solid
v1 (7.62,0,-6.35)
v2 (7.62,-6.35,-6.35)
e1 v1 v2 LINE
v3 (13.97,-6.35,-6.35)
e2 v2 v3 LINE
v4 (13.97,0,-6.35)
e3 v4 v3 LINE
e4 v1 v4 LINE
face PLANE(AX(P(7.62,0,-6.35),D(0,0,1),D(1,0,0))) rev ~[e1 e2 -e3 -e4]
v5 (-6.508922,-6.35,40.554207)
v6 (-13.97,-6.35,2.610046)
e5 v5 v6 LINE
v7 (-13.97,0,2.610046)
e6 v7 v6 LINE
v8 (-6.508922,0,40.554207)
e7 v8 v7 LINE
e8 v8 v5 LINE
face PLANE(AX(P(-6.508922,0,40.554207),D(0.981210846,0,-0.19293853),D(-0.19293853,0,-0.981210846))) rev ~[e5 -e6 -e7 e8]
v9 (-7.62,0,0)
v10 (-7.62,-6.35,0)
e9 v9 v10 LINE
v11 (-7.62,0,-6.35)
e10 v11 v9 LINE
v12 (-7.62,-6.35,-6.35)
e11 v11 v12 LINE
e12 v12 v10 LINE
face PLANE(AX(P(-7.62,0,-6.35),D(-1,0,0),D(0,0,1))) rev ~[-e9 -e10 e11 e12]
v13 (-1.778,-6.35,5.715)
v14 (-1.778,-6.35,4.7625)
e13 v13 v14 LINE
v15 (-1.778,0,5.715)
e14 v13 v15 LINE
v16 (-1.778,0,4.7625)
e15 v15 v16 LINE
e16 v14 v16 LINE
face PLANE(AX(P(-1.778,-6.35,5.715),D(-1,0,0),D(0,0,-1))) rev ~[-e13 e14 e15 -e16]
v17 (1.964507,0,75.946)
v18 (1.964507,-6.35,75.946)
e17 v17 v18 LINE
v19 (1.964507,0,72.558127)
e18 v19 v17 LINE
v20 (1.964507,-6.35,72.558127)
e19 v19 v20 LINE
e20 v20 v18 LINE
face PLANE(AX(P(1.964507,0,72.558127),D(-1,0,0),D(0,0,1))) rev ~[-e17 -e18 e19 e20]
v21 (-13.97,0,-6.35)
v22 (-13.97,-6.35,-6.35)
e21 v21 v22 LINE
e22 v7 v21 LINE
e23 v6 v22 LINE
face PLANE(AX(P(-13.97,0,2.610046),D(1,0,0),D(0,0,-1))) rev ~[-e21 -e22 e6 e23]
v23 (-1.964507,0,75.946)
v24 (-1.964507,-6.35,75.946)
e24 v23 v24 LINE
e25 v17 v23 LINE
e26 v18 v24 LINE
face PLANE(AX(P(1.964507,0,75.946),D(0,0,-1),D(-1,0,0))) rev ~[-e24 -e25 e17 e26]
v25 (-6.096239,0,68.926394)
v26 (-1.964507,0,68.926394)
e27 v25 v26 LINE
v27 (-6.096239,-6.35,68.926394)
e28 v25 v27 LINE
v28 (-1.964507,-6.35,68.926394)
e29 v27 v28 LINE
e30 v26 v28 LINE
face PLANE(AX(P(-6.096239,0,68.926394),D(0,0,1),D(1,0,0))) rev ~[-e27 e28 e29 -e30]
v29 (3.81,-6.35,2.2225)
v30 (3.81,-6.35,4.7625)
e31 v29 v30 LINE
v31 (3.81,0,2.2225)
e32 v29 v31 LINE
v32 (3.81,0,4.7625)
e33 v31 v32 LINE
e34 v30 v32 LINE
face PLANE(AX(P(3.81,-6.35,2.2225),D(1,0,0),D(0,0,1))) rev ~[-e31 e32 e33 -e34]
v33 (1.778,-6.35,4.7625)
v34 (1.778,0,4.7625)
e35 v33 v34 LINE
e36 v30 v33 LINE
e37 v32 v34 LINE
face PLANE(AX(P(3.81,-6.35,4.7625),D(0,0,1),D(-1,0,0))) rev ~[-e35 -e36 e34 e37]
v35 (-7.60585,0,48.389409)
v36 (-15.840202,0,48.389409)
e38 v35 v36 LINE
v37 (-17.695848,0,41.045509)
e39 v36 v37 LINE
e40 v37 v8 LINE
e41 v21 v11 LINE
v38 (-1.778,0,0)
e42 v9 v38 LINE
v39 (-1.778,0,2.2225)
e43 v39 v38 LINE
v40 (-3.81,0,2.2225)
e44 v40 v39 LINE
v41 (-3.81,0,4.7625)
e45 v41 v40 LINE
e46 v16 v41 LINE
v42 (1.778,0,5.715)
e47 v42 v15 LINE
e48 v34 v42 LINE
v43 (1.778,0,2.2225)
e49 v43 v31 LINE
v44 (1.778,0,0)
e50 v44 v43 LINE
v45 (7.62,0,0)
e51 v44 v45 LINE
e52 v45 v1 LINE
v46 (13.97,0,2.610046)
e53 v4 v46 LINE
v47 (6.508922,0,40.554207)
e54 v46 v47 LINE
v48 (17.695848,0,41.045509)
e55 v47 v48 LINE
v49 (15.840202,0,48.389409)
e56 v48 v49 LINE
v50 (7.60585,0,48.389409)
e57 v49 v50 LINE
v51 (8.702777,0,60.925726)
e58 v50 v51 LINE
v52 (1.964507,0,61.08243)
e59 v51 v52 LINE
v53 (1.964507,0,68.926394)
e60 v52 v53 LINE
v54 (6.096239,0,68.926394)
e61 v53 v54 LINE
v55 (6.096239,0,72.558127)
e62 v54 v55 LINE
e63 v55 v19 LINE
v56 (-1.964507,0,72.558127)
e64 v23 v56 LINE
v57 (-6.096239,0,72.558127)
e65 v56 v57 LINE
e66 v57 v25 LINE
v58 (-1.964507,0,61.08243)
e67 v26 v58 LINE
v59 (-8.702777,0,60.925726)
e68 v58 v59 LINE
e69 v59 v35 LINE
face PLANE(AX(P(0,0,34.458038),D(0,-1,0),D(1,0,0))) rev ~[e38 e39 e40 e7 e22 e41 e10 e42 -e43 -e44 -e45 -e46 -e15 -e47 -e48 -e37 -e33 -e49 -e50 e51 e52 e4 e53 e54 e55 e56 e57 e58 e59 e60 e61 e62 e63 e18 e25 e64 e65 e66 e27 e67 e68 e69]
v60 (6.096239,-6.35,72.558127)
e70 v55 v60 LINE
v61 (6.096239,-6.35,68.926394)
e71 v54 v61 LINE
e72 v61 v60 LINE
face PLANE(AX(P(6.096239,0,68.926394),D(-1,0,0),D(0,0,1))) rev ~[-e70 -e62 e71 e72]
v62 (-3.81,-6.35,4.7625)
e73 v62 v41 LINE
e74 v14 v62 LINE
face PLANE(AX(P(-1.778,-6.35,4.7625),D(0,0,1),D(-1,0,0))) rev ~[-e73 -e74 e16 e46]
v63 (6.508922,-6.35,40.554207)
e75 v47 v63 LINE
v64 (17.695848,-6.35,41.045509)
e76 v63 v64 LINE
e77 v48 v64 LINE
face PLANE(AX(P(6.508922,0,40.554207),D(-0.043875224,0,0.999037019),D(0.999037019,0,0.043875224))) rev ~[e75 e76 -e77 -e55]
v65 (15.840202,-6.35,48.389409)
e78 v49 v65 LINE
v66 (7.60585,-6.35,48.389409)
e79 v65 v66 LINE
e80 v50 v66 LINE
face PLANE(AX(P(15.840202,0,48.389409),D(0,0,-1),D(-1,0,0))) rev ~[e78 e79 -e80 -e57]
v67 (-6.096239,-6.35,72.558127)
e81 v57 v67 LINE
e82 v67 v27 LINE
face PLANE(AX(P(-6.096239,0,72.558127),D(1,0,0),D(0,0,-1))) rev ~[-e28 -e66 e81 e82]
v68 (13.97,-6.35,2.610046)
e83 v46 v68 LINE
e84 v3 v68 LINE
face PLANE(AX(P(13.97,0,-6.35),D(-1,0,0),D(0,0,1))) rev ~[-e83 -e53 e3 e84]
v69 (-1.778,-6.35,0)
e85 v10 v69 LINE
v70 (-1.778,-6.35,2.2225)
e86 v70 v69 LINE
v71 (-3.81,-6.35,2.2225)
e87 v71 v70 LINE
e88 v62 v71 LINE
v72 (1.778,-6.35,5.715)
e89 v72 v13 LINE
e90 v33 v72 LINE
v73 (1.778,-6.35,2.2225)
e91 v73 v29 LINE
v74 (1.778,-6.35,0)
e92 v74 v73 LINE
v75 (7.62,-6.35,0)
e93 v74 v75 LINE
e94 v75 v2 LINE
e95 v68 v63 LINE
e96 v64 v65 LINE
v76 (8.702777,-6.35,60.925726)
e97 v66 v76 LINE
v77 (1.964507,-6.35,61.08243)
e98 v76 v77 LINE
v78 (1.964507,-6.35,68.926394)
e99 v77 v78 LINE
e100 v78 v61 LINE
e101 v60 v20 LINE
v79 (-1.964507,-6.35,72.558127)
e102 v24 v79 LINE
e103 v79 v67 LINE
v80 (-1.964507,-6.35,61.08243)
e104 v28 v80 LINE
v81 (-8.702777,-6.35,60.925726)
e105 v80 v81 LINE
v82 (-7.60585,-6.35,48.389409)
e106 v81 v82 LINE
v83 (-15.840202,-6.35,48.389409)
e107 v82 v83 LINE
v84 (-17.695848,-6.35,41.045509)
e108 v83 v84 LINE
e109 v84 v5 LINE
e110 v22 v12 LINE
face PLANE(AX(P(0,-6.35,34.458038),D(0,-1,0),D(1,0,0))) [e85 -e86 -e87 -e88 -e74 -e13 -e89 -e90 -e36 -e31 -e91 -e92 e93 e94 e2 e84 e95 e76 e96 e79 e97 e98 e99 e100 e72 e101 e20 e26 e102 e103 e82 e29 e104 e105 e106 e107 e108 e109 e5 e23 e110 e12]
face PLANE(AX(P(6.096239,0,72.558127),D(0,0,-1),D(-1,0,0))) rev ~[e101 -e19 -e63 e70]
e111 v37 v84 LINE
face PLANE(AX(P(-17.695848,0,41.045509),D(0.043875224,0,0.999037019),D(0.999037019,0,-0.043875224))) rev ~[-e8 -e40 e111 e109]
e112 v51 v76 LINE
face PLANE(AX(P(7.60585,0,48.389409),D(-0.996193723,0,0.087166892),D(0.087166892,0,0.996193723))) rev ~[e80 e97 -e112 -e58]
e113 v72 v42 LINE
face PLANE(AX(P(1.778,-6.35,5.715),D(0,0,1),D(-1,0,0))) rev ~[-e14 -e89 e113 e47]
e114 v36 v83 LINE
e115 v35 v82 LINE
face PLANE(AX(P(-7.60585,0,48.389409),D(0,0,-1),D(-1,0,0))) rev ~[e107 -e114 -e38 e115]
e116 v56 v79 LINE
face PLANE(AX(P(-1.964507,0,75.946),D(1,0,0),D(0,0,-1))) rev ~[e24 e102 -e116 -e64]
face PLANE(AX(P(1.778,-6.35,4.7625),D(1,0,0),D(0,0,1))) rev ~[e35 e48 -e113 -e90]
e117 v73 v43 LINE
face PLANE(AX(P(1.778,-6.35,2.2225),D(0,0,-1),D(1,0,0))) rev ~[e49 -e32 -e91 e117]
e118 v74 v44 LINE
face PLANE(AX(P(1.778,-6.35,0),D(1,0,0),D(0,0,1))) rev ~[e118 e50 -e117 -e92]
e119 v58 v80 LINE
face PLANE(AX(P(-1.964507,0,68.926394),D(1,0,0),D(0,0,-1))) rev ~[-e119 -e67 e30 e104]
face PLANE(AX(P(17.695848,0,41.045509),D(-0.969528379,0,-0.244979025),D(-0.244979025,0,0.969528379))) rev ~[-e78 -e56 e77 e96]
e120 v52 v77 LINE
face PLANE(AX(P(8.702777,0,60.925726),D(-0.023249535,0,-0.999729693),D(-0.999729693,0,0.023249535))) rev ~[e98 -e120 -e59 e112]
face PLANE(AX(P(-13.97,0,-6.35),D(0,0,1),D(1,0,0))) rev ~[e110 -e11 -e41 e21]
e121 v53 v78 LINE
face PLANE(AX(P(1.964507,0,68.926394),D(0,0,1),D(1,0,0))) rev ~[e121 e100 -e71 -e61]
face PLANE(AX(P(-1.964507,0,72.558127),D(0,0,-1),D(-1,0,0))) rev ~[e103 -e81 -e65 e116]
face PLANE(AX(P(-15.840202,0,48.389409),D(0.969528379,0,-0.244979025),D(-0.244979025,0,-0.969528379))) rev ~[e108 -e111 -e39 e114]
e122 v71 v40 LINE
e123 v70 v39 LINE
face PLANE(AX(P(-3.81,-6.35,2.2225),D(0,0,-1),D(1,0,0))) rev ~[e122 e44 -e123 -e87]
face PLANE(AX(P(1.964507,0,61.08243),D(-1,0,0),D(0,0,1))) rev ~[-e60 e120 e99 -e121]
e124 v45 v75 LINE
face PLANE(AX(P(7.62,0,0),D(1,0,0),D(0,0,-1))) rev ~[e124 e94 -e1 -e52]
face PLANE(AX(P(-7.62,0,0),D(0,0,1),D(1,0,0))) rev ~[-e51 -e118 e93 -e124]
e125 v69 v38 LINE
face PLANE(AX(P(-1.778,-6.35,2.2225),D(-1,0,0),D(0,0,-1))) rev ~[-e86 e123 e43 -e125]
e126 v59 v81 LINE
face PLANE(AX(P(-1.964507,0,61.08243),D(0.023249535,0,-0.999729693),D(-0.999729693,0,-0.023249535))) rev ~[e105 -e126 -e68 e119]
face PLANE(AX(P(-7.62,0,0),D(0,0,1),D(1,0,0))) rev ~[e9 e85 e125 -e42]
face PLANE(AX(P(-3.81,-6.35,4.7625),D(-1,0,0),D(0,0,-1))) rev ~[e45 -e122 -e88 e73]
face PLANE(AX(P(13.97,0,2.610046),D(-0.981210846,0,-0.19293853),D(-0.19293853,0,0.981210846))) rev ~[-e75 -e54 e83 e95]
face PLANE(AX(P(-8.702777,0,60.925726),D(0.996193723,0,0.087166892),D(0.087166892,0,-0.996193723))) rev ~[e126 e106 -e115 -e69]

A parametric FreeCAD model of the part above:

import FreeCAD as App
import Part
import Sketcher

V = App.Vector
Q = App.Units.Quantity


def add_polygon(sketch, points):
    """Adds a closed chain of lines whose ends are joined by coincident constraints."""
    first, n = sketch.GeometryCount, len(points)
    for a, b in zip(points, points[1:] + points[:1]):
        sketch.addGeometry(Part.LineSegment(App.Vector(*a, 0), App.Vector(*b, 0)), False)
    for i in range(n):
        sketch.addConstraint(Sketcher.Constraint("Coincident", first + i, 2, first + (i + 1) % n, 1))

doc = App.newDocument("Part")
body = doc.addObject("PartDesign::Body", "Body")

# Sketch on XZ plane
sketch1 = doc.addObject("Sketcher::SketchObject", "Sketch")
body.addObject(sketch1)
sketch1.AttachmentSupport = (doc.XZ_Plane, [""])
sketch1.MapMode = "FlatFace"
add_polygon(sketch1, [(-13.97, 2.610046), (-13.97, -6.35), (-7.62, -6.35), (-7.62, 0), (7.62, 0), (7.62, -6.35), (13.97, -6.35), (13.97, 2.610046), (6.508922, 40.554207), (17.695848, 41.045509), (15.840202, 48.389409), (7.60585, 48.389409), (8.702777, 60.925726), (1.964507, 61.08243), (1.964507, 68.926394), (6.096239, 68.926394), (6.096239, 72.558127), (1.964507, 72.558127), (1.964507, 75.946), (-1.964507, 75.946), (-1.964507, 72.558127), (-6.096239, 72.558127), (-6.096239, 68.926394), (-1.964507, 68.926394), (-1.964507, 61.08243), (-8.702777, 60.925726), (-7.60585, 48.389409), (-15.840202, 48.389409), (-17.695848, 41.045509), (-6.508922, 40.554207)])  # lines 0-29
sketch1.addConstraint([
    Sketcher.Constraint("Vertical", 0),
    Sketcher.Constraint("Horizontal", 1),
    Sketcher.Constraint("Vertical", 2),
    Sketcher.Constraint("Horizontal", 3),
    Sketcher.Constraint("Vertical", 4),
    Sketcher.Constraint("Horizontal", 5),
    Sketcher.Constraint("Vertical", 6),
    Sketcher.Constraint("Horizontal", 10),
    Sketcher.Constraint("Vertical", 13),
    Sketcher.Constraint("Horizontal", 14),
    Sketcher.Constraint("Vertical", 15),
    Sketcher.Constraint("Horizontal", 16),
    Sketcher.Constraint("Vertical", 17),
    Sketcher.Constraint("Horizontal", 18),
    Sketcher.Constraint("Vertical", 19),
    Sketcher.Constraint("Horizontal", 20),
    Sketcher.Constraint("Vertical", 21),
    Sketcher.Constraint("Horizontal", 22),
    Sketcher.Constraint("Vertical", 23),
    Sketcher.Constraint("Horizontal", 26),
    Sketcher.Constraint("Symmetric", 2, 2, 3, 2, -1, 1),
    Sketcher.Constraint("Symmetric", 0, 2, 5, 2, -2),
    Sketcher.Constraint("Symmetric", 16, 2, 19, 2, -2),
    Sketcher.Constraint("Symmetric", 14, 2, 21, 2, -2),
    Sketcher.Constraint("Symmetric", 12, 2, 23, 2, -2),
    Sketcher.Constraint("Symmetric", 11, 2, 24, 2, -2),
    Sketcher.Constraint("Symmetric", 10, 2, 25, 2, -2),
    Sketcher.Constraint("Symmetric", 8, 2, 27, 2, -2),
    Sketcher.Constraint("Symmetric", 7, 2, 28, 2, -2),
    Sketcher.Constraint("Horizontal", 6, 2, 29, 2),
    Sketcher.Constraint("Vertical", 13, 2, 16, 2),
    Sketcher.Constraint("Equal", 10, 26),
    Sketcher.Constraint("Equal", 5, 2),
    Sketcher.Constraint("DistanceX", 3, 1, 3, 2, Q("0.6 in")),
    Sketcher.Constraint("DistanceX", 1, 1, 1, 2, Q("0.25 in")),
    Sketcher.Constraint("DistanceY", -1, 1, 17, 2, Q("2.99 in")),
    Sketcher.Constraint("DistanceX", 12, 2, 10, 2, Q("0.2221001 in")),
    Sketcher.Constraint("DistanceX", 14, 1, 14, 2, 4.131732),
    Sketcher.Constraint("DistanceY", 8, 2, 9, 2, 7.3439),
    Sketcher.Constraint("DistanceX", 6, 2, 9, 2, 1.870202),
    Sketcher.Constraint("DistanceX", 10, 2, 8, 2, 10.089998),
    Sketcher.Constraint("DistanceY", 11, 2, 15, 2, 11.632401),
    Sketcher.Constraint("DistanceX", 25, 2, 10, 2, 15.2117),
    Sketcher.Constraint("Distance", 7, 38.670752),
    Sketcher.Constraint("Distance", 8, 11.197709),
    Sketcher.Constraint("Distance", 12, 6.740092),
    Sketcher.Constraint("DistanceY", 0, 2, 0, 1, 8.960046),
    Sketcher.Constraint("DistanceY", 13, 1, 13, 2, 7.843964),
    Sketcher.Constraint("DistanceY", 15, 1, 15, 2, 3.631733),
    Sketcher.Constraint("DistanceY", 17, 1, 17, 2, 3.387873),
    Sketcher.Constraint("DistanceY", -1, 1, 8, 2, 41.045509),
])
pad1 = doc.addObject("PartDesign::Pad", "Pad")
body.addObject(pad1)
pad1.Profile = sketch1
pad1.Length = Q("0.25 in")

# Sketch on XZ plane
sketch2 = doc.addObject("Sketcher::SketchObject", "Sketch001")
body.addObject(sketch2)
sketch2.AttachmentSupport = (doc.XZ_Plane, [""])
sketch2.MapMode = "FlatFace"
sketch2.AttachmentOffset = App.Placement(V(0, 0, 0.25 * 25.4), App.Rotation())
add_polygon(sketch2, [(1.778, 5.715), (-1.778, 5.715), (-1.778, 4.7625), (-3.81, 4.7625), (-3.81, 2.2225), (-1.778, 2.2225), (-1.778, 0), (1.778, 0), (1.778, 2.2225), (3.81, 2.2225), (3.81, 4.7625), (1.778, 4.7625)])  # lines 0-11
sketch2.addConstraint([
    Sketcher.Constraint("Horizontal", 0),
    Sketcher.Constraint("Vertical", 1),
    Sketcher.Constraint("Horizontal", 2),
    Sketcher.Constraint("Vertical", 3),
    Sketcher.Constraint("Horizontal", 4),
    Sketcher.Constraint("Vertical", 5),
    Sketcher.Constraint("Horizontal", 6),
    Sketcher.Constraint("Vertical", 7),
    Sketcher.Constraint("Horizontal", 8),
    Sketcher.Constraint("Vertical", 9),
    Sketcher.Constraint("Horizontal", 10),
    Sketcher.Constraint("Vertical", 11),
    Sketcher.Constraint("Symmetric", 5, 2, 6, 2, -1, 1),
    Sketcher.Constraint("Symmetric", 3, 2, 8, 2, -2),
    Sketcher.Constraint("Symmetric", 1, 2, 10, 2, -2),
    Sketcher.Constraint("Vertical", 1, 2, 4, 2),
    Sketcher.Constraint("DistanceY", 3, 2, 3, 1, Q("0.1 in")),
    Sketcher.Constraint("DistanceX", 0, 2, 0, 1, Q("0.14 in")),
    Sketcher.Constraint("DistanceX", 2, 2, 2, 1, Q("0.08 in")),
    Sketcher.Constraint("DistanceY", 1, 2, 1, 1, Q("0.0375 in")),
    Sketcher.Constraint("DistanceY", 5, 2, 5, 1, Q("0.0875 in")),
])
pocket1 = doc.addObject("PartDesign::Pocket", "Pocket")
body.addObject(pocket1)
pocket1.Profile = sketch2
pocket1.Length = Q("1 in")

doc.recompute()
